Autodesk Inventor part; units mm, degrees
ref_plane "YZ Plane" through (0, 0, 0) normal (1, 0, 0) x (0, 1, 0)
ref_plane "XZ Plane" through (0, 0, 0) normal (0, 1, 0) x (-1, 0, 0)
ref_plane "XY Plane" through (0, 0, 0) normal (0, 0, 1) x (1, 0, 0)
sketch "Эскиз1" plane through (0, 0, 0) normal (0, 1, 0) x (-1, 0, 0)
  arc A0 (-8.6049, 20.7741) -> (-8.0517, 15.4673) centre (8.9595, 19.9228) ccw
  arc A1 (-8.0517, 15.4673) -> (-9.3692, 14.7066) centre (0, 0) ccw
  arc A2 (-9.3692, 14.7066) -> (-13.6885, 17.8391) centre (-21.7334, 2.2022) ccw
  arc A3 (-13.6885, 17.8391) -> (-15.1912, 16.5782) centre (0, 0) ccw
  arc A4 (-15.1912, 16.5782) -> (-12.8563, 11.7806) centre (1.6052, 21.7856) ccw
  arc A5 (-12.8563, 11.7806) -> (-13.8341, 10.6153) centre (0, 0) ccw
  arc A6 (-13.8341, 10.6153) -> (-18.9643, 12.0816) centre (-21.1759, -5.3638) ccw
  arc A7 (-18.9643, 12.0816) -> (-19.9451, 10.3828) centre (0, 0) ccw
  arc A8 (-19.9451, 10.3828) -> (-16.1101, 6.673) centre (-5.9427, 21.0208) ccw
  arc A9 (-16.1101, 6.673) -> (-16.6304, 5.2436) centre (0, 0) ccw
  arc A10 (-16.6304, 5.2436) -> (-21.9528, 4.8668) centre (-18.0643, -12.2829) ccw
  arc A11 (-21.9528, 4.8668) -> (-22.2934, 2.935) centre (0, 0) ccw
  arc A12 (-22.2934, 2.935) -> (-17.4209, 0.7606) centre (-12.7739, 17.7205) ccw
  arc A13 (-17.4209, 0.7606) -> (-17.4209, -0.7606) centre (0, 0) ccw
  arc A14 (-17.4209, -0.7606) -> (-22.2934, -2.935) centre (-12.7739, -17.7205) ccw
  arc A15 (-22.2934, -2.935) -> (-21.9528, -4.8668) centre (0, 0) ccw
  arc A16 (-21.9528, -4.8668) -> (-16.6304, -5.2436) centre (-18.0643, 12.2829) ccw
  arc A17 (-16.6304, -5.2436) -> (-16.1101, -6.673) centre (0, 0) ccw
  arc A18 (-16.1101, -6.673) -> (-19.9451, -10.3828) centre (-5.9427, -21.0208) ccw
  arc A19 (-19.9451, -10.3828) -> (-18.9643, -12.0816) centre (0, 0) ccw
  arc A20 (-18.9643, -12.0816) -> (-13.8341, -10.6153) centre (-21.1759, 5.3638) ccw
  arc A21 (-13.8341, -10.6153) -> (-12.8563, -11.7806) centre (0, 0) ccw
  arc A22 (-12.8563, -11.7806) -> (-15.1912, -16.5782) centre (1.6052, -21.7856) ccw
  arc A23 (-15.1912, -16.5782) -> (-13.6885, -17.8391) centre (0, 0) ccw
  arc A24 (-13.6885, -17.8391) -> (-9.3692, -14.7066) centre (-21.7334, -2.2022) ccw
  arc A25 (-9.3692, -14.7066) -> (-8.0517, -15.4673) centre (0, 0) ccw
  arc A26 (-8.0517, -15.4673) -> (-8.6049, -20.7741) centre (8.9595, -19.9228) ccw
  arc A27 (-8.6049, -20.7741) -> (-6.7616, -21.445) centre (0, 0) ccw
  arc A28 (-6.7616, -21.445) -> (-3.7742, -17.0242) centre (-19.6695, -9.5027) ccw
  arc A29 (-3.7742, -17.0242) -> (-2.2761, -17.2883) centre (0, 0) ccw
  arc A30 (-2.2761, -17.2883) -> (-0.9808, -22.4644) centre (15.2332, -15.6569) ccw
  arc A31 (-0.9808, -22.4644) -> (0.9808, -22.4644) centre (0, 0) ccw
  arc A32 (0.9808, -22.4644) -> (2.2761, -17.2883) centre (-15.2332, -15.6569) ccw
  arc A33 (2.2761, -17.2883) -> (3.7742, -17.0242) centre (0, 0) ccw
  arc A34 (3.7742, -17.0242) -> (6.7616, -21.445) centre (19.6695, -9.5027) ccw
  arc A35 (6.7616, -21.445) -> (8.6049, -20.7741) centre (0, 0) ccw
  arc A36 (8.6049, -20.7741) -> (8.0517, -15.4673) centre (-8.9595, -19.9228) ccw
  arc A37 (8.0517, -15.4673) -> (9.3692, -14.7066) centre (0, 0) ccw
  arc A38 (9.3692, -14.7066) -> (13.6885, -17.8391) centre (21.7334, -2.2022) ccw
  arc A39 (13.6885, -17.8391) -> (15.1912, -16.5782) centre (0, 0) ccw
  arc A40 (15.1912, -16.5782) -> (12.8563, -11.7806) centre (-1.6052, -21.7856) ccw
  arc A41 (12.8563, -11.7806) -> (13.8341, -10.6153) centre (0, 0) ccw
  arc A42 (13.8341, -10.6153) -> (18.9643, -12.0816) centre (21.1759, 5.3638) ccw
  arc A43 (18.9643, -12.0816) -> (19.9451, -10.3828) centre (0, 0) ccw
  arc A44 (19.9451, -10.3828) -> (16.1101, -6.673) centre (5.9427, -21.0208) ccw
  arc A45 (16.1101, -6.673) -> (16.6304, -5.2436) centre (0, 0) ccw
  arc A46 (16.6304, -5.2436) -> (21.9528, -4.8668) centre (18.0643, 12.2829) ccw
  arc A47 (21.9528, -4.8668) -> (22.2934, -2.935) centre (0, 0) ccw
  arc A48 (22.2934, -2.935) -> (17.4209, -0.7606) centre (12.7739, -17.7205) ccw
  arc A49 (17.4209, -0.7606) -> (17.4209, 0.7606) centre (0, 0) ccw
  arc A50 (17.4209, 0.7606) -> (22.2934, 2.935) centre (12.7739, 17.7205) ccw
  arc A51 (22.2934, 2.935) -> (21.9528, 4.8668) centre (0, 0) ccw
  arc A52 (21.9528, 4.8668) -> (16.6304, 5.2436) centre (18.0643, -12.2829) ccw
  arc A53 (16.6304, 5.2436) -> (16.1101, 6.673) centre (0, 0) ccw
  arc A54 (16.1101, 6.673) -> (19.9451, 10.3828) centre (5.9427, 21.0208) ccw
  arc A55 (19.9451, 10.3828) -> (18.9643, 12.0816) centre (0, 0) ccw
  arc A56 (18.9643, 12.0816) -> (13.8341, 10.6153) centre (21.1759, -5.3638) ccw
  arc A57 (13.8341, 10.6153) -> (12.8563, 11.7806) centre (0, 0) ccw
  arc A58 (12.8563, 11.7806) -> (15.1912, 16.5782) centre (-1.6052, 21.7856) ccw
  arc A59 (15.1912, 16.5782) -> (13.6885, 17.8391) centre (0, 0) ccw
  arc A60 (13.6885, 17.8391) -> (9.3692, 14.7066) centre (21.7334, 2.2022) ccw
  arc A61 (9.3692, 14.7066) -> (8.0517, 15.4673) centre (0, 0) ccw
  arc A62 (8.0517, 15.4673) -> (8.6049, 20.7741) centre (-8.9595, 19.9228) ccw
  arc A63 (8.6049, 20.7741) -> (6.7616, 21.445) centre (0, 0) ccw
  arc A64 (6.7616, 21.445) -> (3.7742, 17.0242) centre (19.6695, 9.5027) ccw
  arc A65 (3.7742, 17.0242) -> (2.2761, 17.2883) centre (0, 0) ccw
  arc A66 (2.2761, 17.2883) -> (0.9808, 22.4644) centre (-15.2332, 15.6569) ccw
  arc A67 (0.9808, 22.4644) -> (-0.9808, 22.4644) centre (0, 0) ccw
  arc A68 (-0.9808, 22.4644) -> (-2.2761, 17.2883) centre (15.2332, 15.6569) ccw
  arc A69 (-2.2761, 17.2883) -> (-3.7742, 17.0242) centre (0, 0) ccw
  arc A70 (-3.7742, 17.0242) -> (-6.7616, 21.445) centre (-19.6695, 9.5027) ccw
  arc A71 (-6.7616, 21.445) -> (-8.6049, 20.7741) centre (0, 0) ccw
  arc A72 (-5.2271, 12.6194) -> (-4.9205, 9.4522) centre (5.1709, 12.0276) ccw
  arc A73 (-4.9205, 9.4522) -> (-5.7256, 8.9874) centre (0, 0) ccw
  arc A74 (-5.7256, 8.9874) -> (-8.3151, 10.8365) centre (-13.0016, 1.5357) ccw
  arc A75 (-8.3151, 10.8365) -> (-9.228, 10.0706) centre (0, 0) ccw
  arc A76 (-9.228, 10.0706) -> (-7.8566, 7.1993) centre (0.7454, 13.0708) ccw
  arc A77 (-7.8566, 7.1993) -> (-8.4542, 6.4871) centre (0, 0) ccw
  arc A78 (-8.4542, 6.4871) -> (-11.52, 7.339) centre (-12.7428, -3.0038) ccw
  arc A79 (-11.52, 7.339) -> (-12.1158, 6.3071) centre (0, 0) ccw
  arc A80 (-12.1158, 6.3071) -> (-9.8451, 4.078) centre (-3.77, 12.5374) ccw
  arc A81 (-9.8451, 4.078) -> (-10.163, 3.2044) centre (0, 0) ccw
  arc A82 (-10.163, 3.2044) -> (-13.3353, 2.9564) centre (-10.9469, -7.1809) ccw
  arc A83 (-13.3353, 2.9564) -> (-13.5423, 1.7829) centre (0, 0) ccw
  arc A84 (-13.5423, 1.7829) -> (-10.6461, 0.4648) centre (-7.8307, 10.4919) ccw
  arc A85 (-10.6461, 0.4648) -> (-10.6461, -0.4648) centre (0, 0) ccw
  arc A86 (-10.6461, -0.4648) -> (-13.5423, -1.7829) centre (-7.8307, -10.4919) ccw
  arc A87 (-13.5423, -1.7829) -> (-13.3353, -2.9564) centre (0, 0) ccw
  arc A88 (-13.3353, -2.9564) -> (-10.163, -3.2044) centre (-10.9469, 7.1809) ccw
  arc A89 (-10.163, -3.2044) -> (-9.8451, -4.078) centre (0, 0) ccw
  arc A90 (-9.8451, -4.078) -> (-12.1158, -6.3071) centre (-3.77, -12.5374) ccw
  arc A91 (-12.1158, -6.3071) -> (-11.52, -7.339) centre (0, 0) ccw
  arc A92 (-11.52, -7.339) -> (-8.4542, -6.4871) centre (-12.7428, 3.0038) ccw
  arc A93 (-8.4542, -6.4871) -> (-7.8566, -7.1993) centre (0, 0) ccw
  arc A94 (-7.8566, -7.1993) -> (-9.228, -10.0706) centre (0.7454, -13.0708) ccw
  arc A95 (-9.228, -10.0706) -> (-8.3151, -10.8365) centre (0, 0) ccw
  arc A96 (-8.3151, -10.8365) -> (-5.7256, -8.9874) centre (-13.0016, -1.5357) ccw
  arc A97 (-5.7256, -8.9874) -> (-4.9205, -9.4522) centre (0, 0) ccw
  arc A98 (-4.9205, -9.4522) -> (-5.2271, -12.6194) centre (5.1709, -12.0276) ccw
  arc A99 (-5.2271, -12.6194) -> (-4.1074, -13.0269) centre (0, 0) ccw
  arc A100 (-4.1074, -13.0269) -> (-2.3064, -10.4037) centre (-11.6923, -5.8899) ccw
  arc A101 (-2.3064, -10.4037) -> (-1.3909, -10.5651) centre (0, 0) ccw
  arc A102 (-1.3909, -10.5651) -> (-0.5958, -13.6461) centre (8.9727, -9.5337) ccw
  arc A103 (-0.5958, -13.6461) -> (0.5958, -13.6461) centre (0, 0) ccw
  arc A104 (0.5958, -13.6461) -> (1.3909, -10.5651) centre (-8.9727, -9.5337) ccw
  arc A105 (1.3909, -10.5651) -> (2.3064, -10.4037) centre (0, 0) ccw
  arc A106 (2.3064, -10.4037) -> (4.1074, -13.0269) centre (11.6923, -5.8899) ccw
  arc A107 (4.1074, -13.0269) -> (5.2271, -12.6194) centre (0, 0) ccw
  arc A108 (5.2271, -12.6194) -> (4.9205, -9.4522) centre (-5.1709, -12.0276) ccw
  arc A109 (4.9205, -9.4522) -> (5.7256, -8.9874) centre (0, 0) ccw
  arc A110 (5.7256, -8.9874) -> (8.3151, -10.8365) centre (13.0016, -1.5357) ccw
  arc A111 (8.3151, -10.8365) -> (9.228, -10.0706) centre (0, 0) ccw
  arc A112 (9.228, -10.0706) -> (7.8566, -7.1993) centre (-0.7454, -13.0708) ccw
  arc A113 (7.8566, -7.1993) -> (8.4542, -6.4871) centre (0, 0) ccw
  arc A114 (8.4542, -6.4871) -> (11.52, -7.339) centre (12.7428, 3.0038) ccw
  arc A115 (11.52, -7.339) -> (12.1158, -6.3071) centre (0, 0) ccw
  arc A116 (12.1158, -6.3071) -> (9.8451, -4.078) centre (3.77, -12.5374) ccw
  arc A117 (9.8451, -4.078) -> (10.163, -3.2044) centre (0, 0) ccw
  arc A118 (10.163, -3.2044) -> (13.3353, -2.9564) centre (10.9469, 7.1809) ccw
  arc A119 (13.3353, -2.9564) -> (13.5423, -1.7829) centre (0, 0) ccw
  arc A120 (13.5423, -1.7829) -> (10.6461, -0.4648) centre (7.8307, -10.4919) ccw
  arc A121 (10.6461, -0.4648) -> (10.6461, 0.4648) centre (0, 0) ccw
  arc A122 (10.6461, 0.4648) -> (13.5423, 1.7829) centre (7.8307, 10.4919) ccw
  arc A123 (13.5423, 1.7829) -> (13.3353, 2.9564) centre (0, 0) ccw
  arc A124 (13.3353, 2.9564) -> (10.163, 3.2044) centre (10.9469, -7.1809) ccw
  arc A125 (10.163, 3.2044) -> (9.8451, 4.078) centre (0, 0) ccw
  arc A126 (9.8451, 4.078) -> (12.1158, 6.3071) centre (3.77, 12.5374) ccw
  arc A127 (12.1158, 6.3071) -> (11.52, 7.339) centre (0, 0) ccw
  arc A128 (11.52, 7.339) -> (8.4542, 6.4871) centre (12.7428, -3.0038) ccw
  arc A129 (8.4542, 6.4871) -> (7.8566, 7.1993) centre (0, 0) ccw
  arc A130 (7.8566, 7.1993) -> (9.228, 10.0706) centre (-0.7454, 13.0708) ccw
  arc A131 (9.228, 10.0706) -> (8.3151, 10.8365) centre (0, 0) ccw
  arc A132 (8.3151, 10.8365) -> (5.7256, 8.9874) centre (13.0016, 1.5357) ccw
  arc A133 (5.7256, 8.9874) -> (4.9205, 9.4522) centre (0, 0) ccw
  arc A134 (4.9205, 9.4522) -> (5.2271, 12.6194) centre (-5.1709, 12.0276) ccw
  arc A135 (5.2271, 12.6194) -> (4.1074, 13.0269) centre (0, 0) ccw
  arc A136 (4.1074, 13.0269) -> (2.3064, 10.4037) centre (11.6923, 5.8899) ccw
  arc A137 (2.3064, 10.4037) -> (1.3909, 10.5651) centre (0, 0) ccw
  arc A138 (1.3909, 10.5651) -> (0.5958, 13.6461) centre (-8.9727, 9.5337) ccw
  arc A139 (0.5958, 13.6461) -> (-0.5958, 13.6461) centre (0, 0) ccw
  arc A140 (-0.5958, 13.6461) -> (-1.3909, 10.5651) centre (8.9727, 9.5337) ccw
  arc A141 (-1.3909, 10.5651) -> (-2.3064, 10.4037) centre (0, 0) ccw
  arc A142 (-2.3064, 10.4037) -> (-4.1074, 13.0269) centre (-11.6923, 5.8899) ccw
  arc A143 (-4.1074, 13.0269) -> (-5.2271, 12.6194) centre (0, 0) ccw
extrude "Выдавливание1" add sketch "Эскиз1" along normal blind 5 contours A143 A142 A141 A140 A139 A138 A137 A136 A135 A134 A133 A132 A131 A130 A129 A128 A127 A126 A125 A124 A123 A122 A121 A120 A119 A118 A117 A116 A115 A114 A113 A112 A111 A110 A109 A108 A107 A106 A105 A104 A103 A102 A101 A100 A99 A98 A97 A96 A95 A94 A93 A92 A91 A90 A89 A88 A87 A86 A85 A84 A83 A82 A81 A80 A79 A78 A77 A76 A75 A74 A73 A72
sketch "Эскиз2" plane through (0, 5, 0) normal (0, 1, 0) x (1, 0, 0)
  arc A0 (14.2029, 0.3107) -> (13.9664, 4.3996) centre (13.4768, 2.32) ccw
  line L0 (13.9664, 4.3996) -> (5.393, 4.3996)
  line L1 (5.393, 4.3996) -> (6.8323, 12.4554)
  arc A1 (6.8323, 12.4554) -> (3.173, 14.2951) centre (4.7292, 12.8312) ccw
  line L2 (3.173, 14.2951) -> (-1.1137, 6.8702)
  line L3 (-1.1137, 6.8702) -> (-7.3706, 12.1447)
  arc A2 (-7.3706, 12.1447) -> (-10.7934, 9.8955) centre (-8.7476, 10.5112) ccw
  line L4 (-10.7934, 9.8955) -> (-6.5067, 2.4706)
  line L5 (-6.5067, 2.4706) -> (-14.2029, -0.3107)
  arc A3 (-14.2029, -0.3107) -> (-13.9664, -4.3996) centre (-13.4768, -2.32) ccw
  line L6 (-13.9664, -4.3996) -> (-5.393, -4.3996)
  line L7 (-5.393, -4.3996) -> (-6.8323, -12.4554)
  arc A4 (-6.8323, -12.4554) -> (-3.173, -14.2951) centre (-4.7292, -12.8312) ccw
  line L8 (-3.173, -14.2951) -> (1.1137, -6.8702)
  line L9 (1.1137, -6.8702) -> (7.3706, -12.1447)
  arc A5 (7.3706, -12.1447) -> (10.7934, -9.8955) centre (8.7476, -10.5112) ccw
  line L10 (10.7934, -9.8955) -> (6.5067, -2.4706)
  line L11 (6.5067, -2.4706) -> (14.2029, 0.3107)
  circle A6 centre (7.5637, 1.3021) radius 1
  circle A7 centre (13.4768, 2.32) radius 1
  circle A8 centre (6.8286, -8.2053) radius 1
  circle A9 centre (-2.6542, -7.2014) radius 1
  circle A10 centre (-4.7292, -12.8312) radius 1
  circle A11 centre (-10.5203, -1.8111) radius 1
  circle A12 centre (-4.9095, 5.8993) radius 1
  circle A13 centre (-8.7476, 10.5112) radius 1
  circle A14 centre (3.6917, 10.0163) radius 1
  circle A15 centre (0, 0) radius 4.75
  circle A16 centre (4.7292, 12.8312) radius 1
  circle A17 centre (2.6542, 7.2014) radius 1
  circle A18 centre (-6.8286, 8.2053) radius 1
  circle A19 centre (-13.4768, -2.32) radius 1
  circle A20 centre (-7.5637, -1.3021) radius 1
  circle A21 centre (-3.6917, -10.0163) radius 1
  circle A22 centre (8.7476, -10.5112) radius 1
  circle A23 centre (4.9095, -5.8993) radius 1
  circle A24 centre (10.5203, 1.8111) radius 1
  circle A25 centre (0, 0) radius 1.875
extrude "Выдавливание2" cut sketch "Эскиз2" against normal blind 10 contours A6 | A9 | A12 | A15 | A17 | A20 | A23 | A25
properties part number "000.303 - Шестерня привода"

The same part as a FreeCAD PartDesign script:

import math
import FreeCAD as App
import Part
import Sketcher
Q = App.Units.Quantity

doc = App.newDocument("Part")
body = doc.addObject("PartDesign::Body", "Body")

# Sketch on XZ plane
sketch1 = body.newObject("Sketcher::SketchObject", "Sketch")
sketch1.AttachmentSupport = (doc.getObject("XZ_Plane"), [""])
sketch1.MapMode = "FlatFace"
sketch1.addGeometry([
    Part.ArcOfCircle(Part.Circle(App.Vector(-0.006021, -0.017737, 0), App.Vector(0, 0, 1), 13.677821), math.radians(67.505235), math.radians(72.498152)),  # 0
    Part.ArcOfCircle(Part.Circle(App.Vector(-5.1709, 12.0276, 0), App.Vector(0, 0, 1), 10.414827), math.radians(-14.316709), math.radians(3.257463)),  # 1
    Part.ArcOfCircle(Part.Circle(App.Vector(-0.00533, -0.009716, 0), App.Vector(0, 0, 1), 10.667318), math.radians(57.503917), math.radians(62.49872)),  # 2
    Part.ArcOfCircle(Part.Circle(App.Vector(13.0016, 1.5357, 0), App.Vector(0, 0, 1), 10.414798), math.radians(116.742684), math.radians(134.316499)),  # 3
    Part.ArcOfCircle(Part.Circle(App.Vector(-0.028362, -0.035339, 0), App.Vector(0, 0, 1), 13.704387), math.radians(47.512405), math.radians(52.495997)),  # 4
    Part.ArcOfCircle(Part.Circle(App.Vector(-0.743504, 13.070067, 0), App.Vector(0, 0, 1), 10.412862), math.radians(-34.318973), math.radians(-16.74149)),  # 5
    Part.ArcOfCircle(Part.Circle(App.Vector(0.002223, 0.00195, 0), App.Vector(0, 0, 1), 10.653313), math.radians(37.498807), math.radians(42.500555)),  # 6
    Part.ArcOfCircle(Part.Circle(App.Vector(12.742436, -3.002795, 0), App.Vector(0, 0, 1), 10.413793), math.radians(96.741278), math.radians(114.316968)),  # 7
    Part.ArcOfCircle(Part.Circle(App.Vector(-0.013156, -0.007983, 0), App.Vector(0, 0, 1), 13.674496), math.radians(27.504268), math.radians(32.498419)),  # 8
    Part.ArcOfCircle(Part.Circle(App.Vector(3.771124, 12.536419, 0), App.Vector(0, 0, 1), 10.413359), math.radians(-54.317935), math.radians(-36.741417)),  # 9
    Part.ArcOfCircle(Part.Circle(App.Vector(0.030459, 0.011845, 0), App.Vector(0, 0, 1), 10.623596), math.radians(17.488566), math.radians(22.503975)),  # 10
    Part.ArcOfCircle(Part.Circle(App.Vector(10.9469, -7.1809, 0), App.Vector(0, 0, 1), 10.414843), math.radians(76.742596), math.radians(94.316597)),  # 11
    Part.ArcOfCircle(Part.Circle(App.Vector(-0.039632, -0.007883, 0), App.Vector(0, 0, 1), 13.699481), math.radians(7.511146), math.radians(12.496457)),  # 12
    Part.ArcOfCircle(Part.Circle(App.Vector(7.8307, 10.4919, 0), App.Vector(0, 0, 1), 10.414848), math.radians(-74.316369), math.radians(-56.742044)),  # 13
    Part.ArcOfCircle(Part.Circle(App.Vector(0, 0, 0), App.Vector(0, 0, 1), 10.656242), math.radians(-2.499899), math.radians(2.499899)),  # 14
    Part.ArcOfCircle(Part.Circle(App.Vector(7.8307, -10.4919, 0), App.Vector(0, 0, 1), 10.414855), math.radians(56.742044), math.radians(74.316369)),  # 15
    Part.ArcOfCircle(Part.Circle(App.Vector(0.039703, -0.006111, 0), App.Vector(0, 0, 1), 13.618998), math.radians(-12.511197), math.radians(-7.496406)),  # 16
    Part.ArcOfCircle(Part.Circle(App.Vector(10.9469, 7.1809, 0), App.Vector(0, 0, 1), 10.41486), math.radians(-94.316597), math.radians(-76.742596)),  # 17
    Part.ArcOfCircle(Part.Circle(App.Vector(-0.031138, 0.01057, 0), App.Vector(0, 0, 1), 10.689082), math.radians(-22.488601), math.radians(-17.50394)),  # 18
    Part.ArcOfCircle(Part.Circle(App.Vector(3.769039, -12.538542, 0), App.Vector(0, 0, 1), 10.416299), math.radians(36.743918), math.radians(54.315435)),  # 19
    Part.ArcOfCircle(Part.Circle(App.Vector(0.013461, -0.007385, 0), App.Vector(0, 0, 1), 13.643791), math.radians(-32.504042), math.radians(-27.498645)),  # 20
    Part.ArcOfCircle(Part.Circle(App.Vector(12.743006, 3.004849, 0), App.Vector(0, 0, 1), 10.415899), math.radians(-114.315177), math.radians(-96.743069)),  # 21
    Part.ArcOfCircle(Part.Circle(App.Vector(-0.002308, 0.001852, 0), App.Vector(0, 0, 1), 10.659222), math.radians(-42.499168), math.radians(-37.500194)),  # 22
    Part.ArcOfCircle(Part.Circle(App.Vector(-0.747163, -13.071815, 0), App.Vector(0, 0, 1), 10.416869), math.radians(16.744898), math.radians(34.315565)),  # 23
    Part.ArcOfCircle(Part.Circle(App.Vector(0.02968, -0.033843, 0), App.Vector(0, 0, 1), 13.614168), math.radians(-52.51252), math.radians(-47.495882)),  # 24
    Part.ArcOfCircle(Part.Circle(App.Vector(13.0016, -1.5357, 0), App.Vector(0, 0, 1), 10.414805), math.radians(-134.316499), math.radians(-116.742684)),  # 25
    Part.ArcOfCircle(Part.Circle(App.Vector(0.005737, -0.009455, 0), App.Vector(0, 0, 1), 10.645202), math.radians(-62.503912), math.radians(-57.498725)),  # 26
    Part.ArcOfCircle(Part.Circle(App.Vector(-5.1709, -12.0276, 0), App.Vector(0, 0, 1), 10.414847), math.radians(-3.257463), math.radians(14.316709)),  # 27
    Part.ArcOfCircle(Part.Circle(App.Vector(0.00677, -0.01741, 0), App.Vector(0, 0, 1), 13.640454), math.radians(-72.504995), math.radians(-67.498392)),  # 28
    Part.ArcOfCircle(Part.Circle(App.Vector(11.695547, -5.887283, 0), App.Vector(0, 0, 1), 10.41893), math.radians(-154.311271), math.radians(-136.74439)),  # 29
    Part.ArcOfCircle(Part.Circle(App.Vector(0.002469, -0.012411, 0), App.Vector(0, 0, 1), 10.643636), math.radians(-82.504571), math.radians(-77.498749)),  # 30
    Part.ArcOfCircle(Part.Circle(App.Vector(-8.9727, -9.5337, 0), App.Vector(0, 0, 1), 10.414797), math.radians(-23.257319), math.radians(-5.683442)),  # 31
    Part.ArcOfCircle(Part.Circle(App.Vector(0, 0, 0), App.Vector(0, 0, 1), 13.6591), math.radians(-92.499993), math.radians(-87.500007)),  # 32
    Part.ArcOfCircle(Part.Circle(App.Vector(8.9727, -9.5337, 0), App.Vector(0, 0, 1), 10.414798), math.radians(-174.316558), math.radians(-156.742681)),  # 33
    Part.ArcOfCircle(Part.Circle(App.Vector(0.00193, 0.012536, 0), App.Vector(0, 0, 1), 10.668944), math.radians(-102.49531), math.radians(-97.50137)),  # 34
    Part.ArcOfCircle(Part.Circle(App.Vector(-11.688694, -5.891988, 0), App.Vector(0, 0, 1), 10.410715), math.radians(-43.262596), math.radians(-25.681743)),  # 35
    Part.ArcOfCircle(Part.Circle(App.Vector(0.006021, 0.017737, 0), App.Vector(0, 0, 1), 13.677821), math.radians(-112.494765), math.radians(-107.501848)),  # 36
    Part.ArcOfCircle(Part.Circle(App.Vector(5.1709, -12.0276, 0), App.Vector(0, 0, 1), 10.414827), math.radians(165.683291), math.radians(183.257463)),  # 37
    Part.ArcOfCircle(Part.Circle(App.Vector(0.00533, 0.009716, 0), App.Vector(0, 0, 1), 10.667318), math.radians(-122.496083), math.radians(-117.50128)),  # 38
    Part.ArcOfCircle(Part.Circle(App.Vector(-13.0016, -1.5357, 0), App.Vector(0, 0, 1), 10.414798), math.radians(-63.257316), math.radians(-45.683501)),  # 39
    Part.ArcOfCircle(Part.Circle(App.Vector(0.028362, 0.035339, 0), App.Vector(0, 0, 1), 13.704387), math.radians(-132.487595), math.radians(-127.504003)),  # 40
    Part.ArcOfCircle(Part.Circle(App.Vector(0.743504, -13.070067, 0), App.Vector(0, 0, 1), 10.412862), math.radians(145.681027), math.radians(163.25851)),  # 41
    Part.ArcOfCircle(Part.Circle(App.Vector(-0.002223, -0.00195, 0), App.Vector(0, 0, 1), 10.653313), math.radians(-142.501193), math.radians(-137.499445)),  # 42
    Part.ArcOfCircle(Part.Circle(App.Vector(-12.742436, 3.002795, 0), App.Vector(0, 0, 1), 10.413793), math.radians(-83.258722), math.radians(-65.683032)),  # 43
    Part.ArcOfCircle(Part.Circle(App.Vector(0.013156, 0.007983, 0), App.Vector(0, 0, 1), 13.674496), math.radians(-152.495732), math.radians(-147.501581)),  # 44
    Part.ArcOfCircle(Part.Circle(App.Vector(-3.771124, -12.536419, 0), App.Vector(0, 0, 1), 10.413359), math.radians(125.682065), math.radians(143.258583)),  # 45
    Part.ArcOfCircle(Part.Circle(App.Vector(-0.030459, -0.011845, 0), App.Vector(0, 0, 1), 10.623596), math.radians(-162.511434), math.radians(-157.496025)),  # 46
    Part.ArcOfCircle(Part.Circle(App.Vector(-10.9469, 7.1809, 0), App.Vector(0, 0, 1), 10.414843), math.radians(-103.257404), math.radians(-85.683403)),  # 47
    Part.ArcOfCircle(Part.Circle(App.Vector(0.039632, 0.007883, 0), App.Vector(0, 0, 1), 13.699481), math.radians(-172.488854), math.radians(-167.503543)),  # 48
    Part.ArcOfCircle(Part.Circle(App.Vector(-7.8307, -10.4919, 0), App.Vector(0, 0, 1), 10.414848), math.radians(105.683631), math.radians(123.257956)),  # 49
    Part.ArcOfCircle(Part.Circle(App.Vector(0, 0, 0), App.Vector(0, 0, 1), 10.656242), math.radians(177.500101), math.radians(182.499899)),  # 50
    Part.ArcOfCircle(Part.Circle(App.Vector(-7.8307, 10.4919, 0), App.Vector(0, 0, 1), 10.414855), math.radians(-123.257956), math.radians(-105.683631)),  # 51
    Part.ArcOfCircle(Part.Circle(App.Vector(-0.039703, 0.006111, 0), App.Vector(0, 0, 1), 13.618998), math.radians(167.488803), math.radians(172.503594)),  # 52
    Part.ArcOfCircle(Part.Circle(App.Vector(-10.9469, -7.1809, 0), App.Vector(0, 0, 1), 10.41486), math.radians(85.683403), math.radians(103.257404)),  # 53
    Part.ArcOfCircle(Part.Circle(App.Vector(0.031138, -0.01057, 0), App.Vector(0, 0, 1), 10.689082), math.radians(157.511399), math.radians(162.49606)),  # 54
    Part.ArcOfCircle(Part.Circle(App.Vector(-3.769039, 12.538542, 0), App.Vector(0, 0, 1), 10.416299), math.radians(-143.256082), math.radians(-125.684565)),  # 55
    Part.ArcOfCircle(Part.Circle(App.Vector(-0.013461, 0.007385, 0), App.Vector(0, 0, 1), 13.643791), math.radians(147.495958), math.radians(152.501355)),  # 56
    Part.ArcOfCircle(Part.Circle(App.Vector(-12.743006, -3.004849, 0), App.Vector(0, 0, 1), 10.415899), math.radians(65.684823), math.radians(83.256931)),  # 57
    Part.ArcOfCircle(Part.Circle(App.Vector(0.002308, -0.001852, 0), App.Vector(0, 0, 1), 10.659222), math.radians(137.500832), math.radians(142.499806)),  # 58
    Part.ArcOfCircle(Part.Circle(App.Vector(0.747163, 13.071815, 0), App.Vector(0, 0, 1), 10.416869), math.radians(-163.255102), math.radians(-145.684435)),  # 59
    Part.ArcOfCircle(Part.Circle(App.Vector(-0.02968, 0.033843, 0), App.Vector(0, 0, 1), 13.614168), math.radians(127.48748), math.radians(132.504118)),  # 60
    Part.ArcOfCircle(Part.Circle(App.Vector(-13.0016, 1.5357, 0), App.Vector(0, 0, 1), 10.414805), math.radians(45.683501), math.radians(63.257316)),  # 61
    Part.ArcOfCircle(Part.Circle(App.Vector(-0.005737, 0.009455, 0), App.Vector(0, 0, 1), 10.645202), math.radians(117.496088), math.radians(122.501275)),  # 62
    Part.ArcOfCircle(Part.Circle(App.Vector(5.1709, 12.0276, 0), App.Vector(0, 0, 1), 10.414847), math.radians(176.742537), math.radians(194.316709)),  # 63
    Part.ArcOfCircle(Part.Circle(App.Vector(-0.00677, 0.01741, 0), App.Vector(0, 0, 1), 13.640454), math.radians(107.495005), math.radians(112.501608)),  # 64
    Part.ArcOfCircle(Part.Circle(App.Vector(-11.695547, 5.887283, 0), App.Vector(0, 0, 1), 10.41893), math.radians(25.688729), math.radians(43.25561)),  # 65
    Part.ArcOfCircle(Part.Circle(App.Vector(-0.002469, 0.012411, 0), App.Vector(0, 0, 1), 10.643636), math.radians(97.495429), math.radians(102.501251)),  # 66
    Part.ArcOfCircle(Part.Circle(App.Vector(8.9727, 9.5337, 0), App.Vector(0, 0, 1), 10.414797), math.radians(156.742681), math.radians(174.316558)),  # 67
    Part.ArcOfCircle(Part.Circle(App.Vector(0, 0, 0), App.Vector(0, 0, 1), 13.6591), math.radians(87.500007), math.radians(92.499993)),  # 68
    Part.ArcOfCircle(Part.Circle(App.Vector(-8.9727, 9.5337, 0), App.Vector(0, 0, 1), 10.414798), math.radians(5.683442), math.radians(23.257319)),  # 69
    Part.ArcOfCircle(Part.Circle(App.Vector(-0.00193, -0.012536, 0), App.Vector(0, 0, 1), 10.668944), math.radians(77.50469), math.radians(82.49863)),  # 70
    Part.ArcOfCircle(Part.Circle(App.Vector(11.688694, 5.891988, 0), App.Vector(0, 0, 1), 10.410715), math.radians(136.737404), math.radians(154.318257)),  # 71
], False)
sketch1.addConstraint([
    Sketcher.Constraint("Coincident", 0, 1, 1, 2),
    Sketcher.Constraint("Coincident", 1, 1, 2, 2),
    Sketcher.Constraint("Coincident", 2, 1, 3, 2),
    Sketcher.Constraint("Coincident", 3, 1, 4, 2),
    Sketcher.Constraint("Coincident", 4, 1, 5, 2),
    Sketcher.Constraint("Coincident", 5, 1, 6, 2),
    Sketcher.Constraint("Coincident", 6, 1, 7, 2),
    Sketcher.Constraint("Coincident", 7, 1, 8, 2),
    Sketcher.Constraint("Coincident", 8, 1, 9, 2),
    Sketcher.Constraint("Coincident", 9, 1, 10, 2),
    Sketcher.Constraint("Coincident", 10, 1, 11, 2),
    Sketcher.Constraint("Coincident", 11, 1, 12, 2),
    Sketcher.Constraint("Coincident", 12, 1, 13, 2),
    Sketcher.Constraint("Coincident", 13, 1, 14, 2),
    Sketcher.Constraint("Coincident", 14, 1, 15, 2),
    Sketcher.Constraint("Coincident", 15, 1, 16, 2),
    Sketcher.Constraint("Coincident", 16, 1, 17, 2),
    Sketcher.Constraint("Coincident", 17, 1, 18, 2),
    Sketcher.Constraint("Coincident", 18, 1, 19, 2),
    Sketcher.Constraint("Coincident", 19, 1, 20, 2),
    Sketcher.Constraint("Coincident", 20, 1, 21, 2),
    Sketcher.Constraint("Coincident", 21, 1, 22, 2),
    Sketcher.Constraint("Coincident", 22, 1, 23, 2),
    Sketcher.Constraint("Coincident", 23, 1, 24, 2),
    Sketcher.Constraint("Coincident", 24, 1, 25, 2),
    Sketcher.Constraint("Coincident", 25, 1, 26, 2),
    Sketcher.Constraint("Coincident", 26, 1, 27, 2),
    Sketcher.Constraint("Coincident", 27, 1, 28, 2),
    Sketcher.Constraint("Coincident", 28, 1, 29, 2),
    Sketcher.Constraint("Coincident", 29, 1, 30, 2),
    Sketcher.Constraint("Coincident", 30, 1, 31, 2),
    Sketcher.Constraint("Coincident", 31, 1, 32, 2),
    Sketcher.Constraint("Coincident", 32, 1, 33, 2),
    Sketcher.Constraint("Coincident", 33, 1, 34, 2),
    Sketcher.Constraint("Coincident", 34, 1, 35, 2),
    Sketcher.Constraint("Coincident", 35, 1, 36, 2),
    Sketcher.Constraint("Coincident", 36, 1, 37, 2),
    Sketcher.Constraint("Coincident", 37, 1, 38, 2),
    Sketcher.Constraint("Coincident", 38, 1, 39, 2),
    Sketcher.Constraint("Coincident", 39, 1, 40, 2),
    Sketcher.Constraint("Coincident", 40, 1, 41, 2),
    Sketcher.Constraint("Coincident", 41, 1, 42, 2),
    Sketcher.Constraint("Coincident", 42, 1, 43, 2),
    Sketcher.Constraint("Coincident", 43, 1, 44, 2),
    Sketcher.Constraint("Coincident", 44, 1, 45, 2),
    Sketcher.Constraint("Coincident", 45, 1, 46, 2),
    Sketcher.Constraint("Coincident", 46, 1, 47, 2),
    Sketcher.Constraint("Coincident", 47, 1, 48, 2),
    Sketcher.Constraint("Coincident", 48, 1, 49, 2),
    Sketcher.Constraint("Coincident", 49, 1, 50, 2),
    Sketcher.Constraint("Coincident", 50, 1, 51, 2),
    Sketcher.Constraint("Coincident", 51, 1, 52, 2),
    Sketcher.Constraint("Coincident", 52, 1, 53, 2),
    Sketcher.Constraint("Coincident", 53, 1, 54, 2),
    Sketcher.Constraint("Coincident", 54, 1, 55, 2),
    Sketcher.Constraint("Coincident", 55, 1, 56, 2),
    Sketcher.Constraint("Coincident", 56, 1, 57, 2),
    Sketcher.Constraint("Coincident", 57, 1, 58, 2),
    Sketcher.Constraint("Coincident", 58, 1, 59, 2),
    Sketcher.Constraint("Coincident", 59, 1, 60, 2),
    Sketcher.Constraint("Coincident", 60, 1, 61, 2),
    Sketcher.Constraint("Coincident", 61, 1, 62, 2),
    Sketcher.Constraint("Coincident", 62, 1, 63, 2),
    Sketcher.Constraint("Coincident", 63, 1, 64, 2),
    Sketcher.Constraint("Coincident", 64, 1, 65, 2),
    Sketcher.Constraint("Coincident", 65, 1, 66, 2),
    Sketcher.Constraint("Coincident", 66, 1, 67, 2),
    Sketcher.Constraint("Coincident", 67, 1, 68, 2),
    Sketcher.Constraint("Coincident", 68, 1, 69, 2),
    Sketcher.Constraint("Coincident", 69, 1, 70, 2),
    Sketcher.Constraint("Coincident", 70, 1, 71, 2),
    Sketcher.Constraint("Coincident", 71, 1, 0, 2),
    Sketcher.Constraint("Coincident", 14, 3, -1, 1),
    Sketcher.Constraint("Coincident", 32, 3, -1, 1),
    Sketcher.Constraint("Coincident", 50, 3, -1, 1),
    Sketcher.Constraint("Coincident", 68, 3, -1, 1),
    Sketcher.Constraint("Equal", 1, 3),
    Sketcher.Constraint("Equal", 3, 11),
    Sketcher.Constraint("Equal", 11, 13),
    Sketcher.Constraint("Equal", 13, 15),
    Sketcher.Constraint("Equal", 15, 17),
    Sketcher.Constraint("Equal", 17, 25),
    Sketcher.Constraint("Equal", 25, 27),
    Sketcher.Constraint("Equal", 27, 31),
    Sketcher.Constraint("Equal", 31, 33),
    Sketcher.Constraint("Equal", 0, 36),
    Sketcher.Constraint("Equal", 33, 37),
    Sketcher.Constraint("Equal", 2, 38),
    Sketcher.Constraint("Equal", 37, 39),
    Sketcher.Constraint("Equal", 4, 40),
    Sketcher.Constraint("Equal", 5, 41),
    Sketcher.Constraint("Equal", 6, 42),
    Sketcher.Constraint("Equal", 7, 43),
    Sketcher.Constraint("Equal", 8, 44),
    Sketcher.Constraint("Equal", 9, 45),
    Sketcher.Constraint("Equal", 10, 46),
    Sketcher.Constraint("Equal", 39, 47),
    Sketcher.Constraint("Equal", 12, 48),
    Sketcher.Constraint("Equal", 47, 49),
    Sketcher.Constraint("Equal", 14, 50),
    Sketcher.Constraint("Equal", 49, 51),
    Sketcher.Constraint("Equal", 16, 52),
    Sketcher.Constraint("Equal", 51, 53),
    Sketcher.Constraint("Equal", 18, 54),
    Sketcher.Constraint("Equal", 19, 55),
    Sketcher.Constraint("Equal", 20, 56),
    Sketcher.Constraint("Equal", 21, 57),
    Sketcher.Constraint("Equal", 22, 58),
    Sketcher.Constraint("Equal", 23, 59),
    Sketcher.Constraint("Equal", 24, 60),
    Sketcher.Constraint("Equal", 53, 61),
    Sketcher.Constraint("Equal", 26, 62),
    Sketcher.Constraint("Equal", 61, 63),
    Sketcher.Constraint("Equal", 28, 64),
    Sketcher.Constraint("Equal", 29, 65),
    Sketcher.Constraint("Equal", 30, 66),
    Sketcher.Constraint("Equal", 63, 67),
    Sketcher.Constraint("Equal", 32, 68),
    Sketcher.Constraint("Equal", 67, 69),
    Sketcher.Constraint("Equal", 34, 70),
    Sketcher.Constraint("Equal", 35, 71),
    Sketcher.Constraint("Symmetric", 0, 3, 36, 3, -1, 1),
    Sketcher.Constraint("Symmetric", 1, 3, 37, 3, -1, 1),
    Sketcher.Constraint("Symmetric", 2, 3, 38, 3, -1, 1),
    Sketcher.Constraint("Symmetric", 3, 3, 39, 3, -1, 1),
    Sketcher.Constraint("Symmetric", 4, 3, 40, 3, -1, 1),
    Sketcher.Constraint("Symmetric", 5, 3, 41, 3, -1, 1),
    Sketcher.Constraint("Symmetric", 6, 3, 42, 3, -1, 1),
    Sketcher.Constraint("Symmetric", 7, 3, 43, 3, -1, 1),
    Sketcher.Constraint("Symmetric", 8, 3, 44, 3, -1, 1),
    Sketcher.Constraint("Symmetric", 9, 3, 45, 3, -1, 1),
    Sketcher.Constraint("Symmetric", 10, 3, 46, 3, -1, 1),
    Sketcher.Constraint("Symmetric", 11, 3, 47, 3, -1, 1),
    Sketcher.Constraint("Symmetric", 12, 3, 48, 3, -1, 1),
    Sketcher.Constraint("Symmetric", 13, 3, 49, 3, -1, 1),
    Sketcher.Constraint("Symmetric", 15, 3, 51, 3, -1, 1),
    Sketcher.Constraint("Symmetric", 16, 3, 52, 3, -1, 1),
    Sketcher.Constraint("Symmetric", 17, 3, 53, 3, -1, 1),
    Sketcher.Constraint("Symmetric", 18, 3, 54, 3, -1, 1),
    Sketcher.Constraint("Symmetric", 19, 3, 55, 3, -1, 1),
    Sketcher.Constraint("Symmetric", 20, 3, 56, 3, -1, 1),
    Sketcher.Constraint("Symmetric", 21, 3, 57, 3, -1, 1),
    Sketcher.Constraint("Symmetric", 22, 3, 58, 3, -1, 1),
    Sketcher.Constraint("Symmetric", 23, 3, 59, 3, -1, 1),
    Sketcher.Constraint("Symmetric", 24, 3, 60, 3, -1, 1),
    Sketcher.Constraint("Symmetric", 25, 3, 61, 3, -1, 1),
    Sketcher.Constraint("Symmetric", 26, 3, 62, 3, -1, 1),
    Sketcher.Constraint("Symmetric", 27, 3, 63, 3, -1, 1),
    Sketcher.Constraint("Symmetric", 28, 3, 64, 3, -1, 1),
    Sketcher.Constraint("Symmetric", 29, 3, 65, 3, -1, 1),
    Sketcher.Constraint("Symmetric", 30, 3, 66, 3, -1, 1),
    Sketcher.Constraint("Symmetric", 31, 3, 67, 3, -1, 1),
    Sketcher.Constraint("Symmetric", 33, 3, 69, 3, -1, 1),
    Sketcher.Constraint("Symmetric", 34, 3, 70, 3, -1, 1),
    Sketcher.Constraint("Symmetric", 35, 3, 71, 3, -1, 1),
    Sketcher.Constraint("Symmetric", 6, 3, 22, 3, -2),
    Sketcher.Constraint("Symmetric", 31, 3, 33, 3, -2),
    Sketcher.Constraint("Symmetric", 27, 3, 37, 3, -2),
    Sketcher.Constraint("Symmetric", 25, 3, 39, 3, -2),
    Sketcher.Constraint("Symmetric", 17, 3, 47, 3, -2),
    Sketcher.Constraint("Symmetric", 15, 3, 49, 3, -2),
    Sketcher.Constraint("Symmetric", 29, 1, 34, 1, -2),
    Sketcher.Constraint("Symmetric", 28, 1, 35, 1, -2),
    Sketcher.Constraint("Symmetric", 23, 1, 40, 1, -2),
    Sketcher.Constraint("Symmetric", 22, 1, 41, 1, -2),
    Sketcher.Constraint("Symmetric", 21, 1, 42, 1, -2),
    Sketcher.Constraint("Symmetric", 20, 1, 43, 1, -2),
    Sketcher.Constraint("Symmetric", 19, 1, 44, 1, -2),
    Sketcher.Constraint("Symmetric", 18, 1, 45, 1, -2),
    Sketcher.Constraint("Horizontal", 8, 3, 12, 3),
    Sketcher.Constraint("Horizontal", 34, 3, 66, 3),
    Sketcher.Constraint("Horizontal", 30, 1, 33, 1),
    Sketcher.Constraint("Horizontal", 27, 1, 36, 1),
    Sketcher.Constraint("Horizontal", 26, 1, 37, 1),
    Sketcher.Constraint("Horizontal", 25, 1, 38, 1),
    Sketcher.Constraint("Horizontal", 24, 1, 39, 1),
    Sketcher.Constraint("Horizontal", 16, 1, 47, 1),
    Sketcher.Constraint("Horizontal", 15, 1, 48, 1),
    Sketcher.Constraint("Vertical", 16, 3, 48, 3),
    Sketcher.Constraint("Vertical", 30, 3, 58, 3),
    Sketcher.Constraint("Vertical", 10, 1, 17, 1),
    Sketcher.Constraint("Radius", 16, Q("13.619 mm")),
    Sketcher.Constraint("Radius", 18, Q("10.689 mm")),
    Sketcher.Constraint("Radius", 21, Q("10.416 mm")),
    Sketcher.Constraint("Radius", 29, Q("10.419 mm")),
    Sketcher.Constraint("Radius", 32, Q("13.659 mm")),
    Sketcher.Constraint("Radius", 34, Q("10.669 mm")),
    Sketcher.Constraint("Radius", 0, Q("13.6778 mm")),
    Sketcher.Constraint("Radius", 1, Q("10.4148 mm")),
    Sketcher.Constraint("Radius", 2, Q("10.6673 mm")),
    Sketcher.Constraint("Radius", 4, Q("13.7044 mm")),
    Sketcher.Constraint("Radius", 5, Q("10.4129 mm")),
    Sketcher.Constraint("Radius", 6, Q("10.6533 mm")),
    Sketcher.Constraint("Radius", 7, Q("10.4138 mm")),
    Sketcher.Constraint("Radius", 8, Q("13.6745 mm")),
    Sketcher.Constraint("Radius", 9, Q("10.4134 mm")),
    Sketcher.Constraint("Radius", 10, Q("10.6236 mm")),
    Sketcher.Constraint("Radius", 12, Q("13.6995 mm")),
    Sketcher.Constraint("Radius", 14, Q("10.6562 mm")),
    Sketcher.Constraint("Radius", 19, Q("10.4163 mm")),
    Sketcher.Constraint("Radius", 20, Q("13.6438 mm")),
    Sketcher.Constraint("Radius", 22, Q("10.6592 mm")),
    Sketcher.Constraint("Radius", 23, Q("10.4169 mm")),
    Sketcher.Constraint("Radius", 24, Q("13.6142 mm")),
    Sketcher.Constraint("Radius", 26, Q("10.6452 mm")),
    Sketcher.Constraint("Radius", 28, Q("13.6405 mm")),
    Sketcher.Constraint("Radius", 30, Q("10.6436 mm")),
    Sketcher.Constraint("Radius", 35, Q("10.4107 mm")),
    Sketcher.Constraint("DistanceY", -1, 1, 5, 3, Q("13.07 mm")),
    Sketcher.Constraint("DistanceX", -1, 1, 7, 1, Q("11.52 mm")),
    Sketcher.Constraint("DistanceX", 0, 3, -1, 1, Q("0.006 mm")),
    Sketcher.Constraint("DistanceX", 1, 3, -1, 1, Q("5.171 mm")),
    Sketcher.Constraint("DistanceY", 8, 3, -1, 1, Q("0.008 mm")),
    Sketcher.Constraint("DistanceX", -1, 1, 11, 3, Q("10.947 mm")),
    Sketcher.Constraint("DistanceY", 11, 3, -1, 1, Q("7.181 mm")),
    Sketcher.Constraint("DistanceY", -1, 1, 13, 3, Q("10.492 mm")),
    Sketcher.Constraint("DistanceX", -1, 1, 19, 3, Q("3.769 mm")),
    Sketcher.Constraint("DistanceX", -1, 1, 21, 3, Q("12.743 mm")),
    Sketcher.Constraint("DistanceY", 35, 3, -1, 1, Q("5.892 mm")),
    Sketcher.Constraint("DistanceX", -1, 1, 0, 1, Q("5.227 mm")),
    Sketcher.Constraint("DistanceX", -1, 1, 3, 1, Q("8.315 mm")),
    Sketcher.Constraint("DistanceX", -1, 1, 4, 1, Q("9.228 mm")),
    Sketcher.Constraint("DistanceY", -1, 1, 6, 1, Q("6.487 mm")),
    Sketcher.Constraint("DistanceY", -1, 1, 8, 1, Q("6.307 mm")),
    Sketcher.Constraint("DistanceX", -1, 1, 9, 1, Q("9.845 mm")),
    Sketcher.Constraint("DistanceX", -1, 1, 10, 1, Q("10.163 mm")),
    Sketcher.Constraint("DistanceY", -1, 1, 12, 1, Q("1.783 mm")),
    Sketcher.Constraint("DistanceY", 28, 1, -1, 1, Q("13.027 mm")),
    Sketcher.Constraint("DistanceX", -1, 1, 30, 1, Q("1.391 mm")),
    Sketcher.Constraint("DistanceY", 32, 1, -1, 1, Q("13.646 mm")),
    Sketcher.Constraint("DistanceY", 0, 3, -1, 1, Q("0.0177 mm")),
    Sketcher.Constraint("DistanceX", 2, 3, -1, 1, Q("0.0053 mm")),
    Sketcher.Constraint("DistanceY", 2, 3, -1, 1, Q("0.0097 mm")),
    Sketcher.Constraint("DistanceX", -1, 1, 3, 3, Q("13.0016 mm")),
    Sketcher.Constraint("DistanceY", -1, 1, 3, 3, Q("1.5357 mm")),
    Sketcher.Constraint("DistanceX", 4, 3, -1, 1, Q("0.0284 mm")),
])
pad1 = body.newObject("PartDesign::Pad", "Pad")
pad1.Profile = sketch1
pad1.Length = 5
pad1.Reversed = True

# Sketch on XZ plane
sketch2 = body.newObject("Sketcher::SketchObject", "Sketch001")
sketch2.AttachmentSupport = (doc.getObject("XZ_Plane"), [""])
sketch2.MapMode = "FlatFace"
sketch2.AttachmentOffset = App.Placement(App.Vector(0, 0, -5), App.Rotation())
sketch2.addGeometry([
    Part.Circle(App.Vector(7.6, -1.3, 0), App.Vector(0, 0, 1), 1),  # 0
    Part.Circle(App.Vector(-2.7, 7.2, 0), App.Vector(0, 0, 1), 1),  # 1
    Part.Circle(App.Vector(-4.9, -5.9, 0), App.Vector(0, 0, 1), 1),  # 2
    Part.Circle(App.Vector(0, 0, 0), App.Vector(0, 0, 1), 4.8),  # 3
    Part.Circle(App.Vector(2.7, -7.2, 0), App.Vector(0, 0, 1), 1),  # 4
    Part.Circle(App.Vector(-7.6, 1.3, 0), App.Vector(0, 0, 1), 1),  # 5
    Part.Circle(App.Vector(4.9, 5.9, 0), App.Vector(0, 0, 1), 1),  # 6
], False)
sketch2.addConstraint([
    Sketcher.Constraint("Coincident", 3, 3, -1, 1),
    Sketcher.Constraint("Equal", 0, 1),
    Sketcher.Constraint("Equal", 1, 2),
    Sketcher.Constraint("Equal", 2, 4),
    Sketcher.Constraint("Equal", 4, 5),
    Sketcher.Constraint("Equal", 5, 6),
    Sketcher.Constraint("Symmetric", 1, 3, 4, 3, -1, 1),
    Sketcher.Constraint("Symmetric", 0, 3, 5, 3, -1, 1),
    Sketcher.Constraint("Symmetric", 2, 3, 6, 3, -1, 1),
    Sketcher.Constraint("Diameter", 0, Q("2 mm")),
    Sketcher.Constraint("Diameter", 3, Q("9.5 mm")),
    Sketcher.Constraint("DistanceY", 0, 3, -1, 1, Q("1.302 mm")),
    Sketcher.Constraint("DistanceX", 1, 3, 0, 3, Q("10.218 mm")),
    Sketcher.Constraint("DistanceY", 4, 3, 2, 3, Q("1.302 mm")),
    Sketcher.Constraint("DistanceX", -1, 1, 0, 3, Q("7.5637 mm")),
    Sketcher.Constraint("DistanceY", -1, 1, 1, 3, Q("7.2014 mm")),
    Sketcher.Constraint("DistanceX", 2, 3, -1, 1, Q("4.9095 mm")),
])
pocket1 = body.newObject("PartDesign::Pocket", "Pocket")
pocket1.Profile = sketch2
pocket1.Length = 10
pocket1.Reversed = True

doc.recompute()
